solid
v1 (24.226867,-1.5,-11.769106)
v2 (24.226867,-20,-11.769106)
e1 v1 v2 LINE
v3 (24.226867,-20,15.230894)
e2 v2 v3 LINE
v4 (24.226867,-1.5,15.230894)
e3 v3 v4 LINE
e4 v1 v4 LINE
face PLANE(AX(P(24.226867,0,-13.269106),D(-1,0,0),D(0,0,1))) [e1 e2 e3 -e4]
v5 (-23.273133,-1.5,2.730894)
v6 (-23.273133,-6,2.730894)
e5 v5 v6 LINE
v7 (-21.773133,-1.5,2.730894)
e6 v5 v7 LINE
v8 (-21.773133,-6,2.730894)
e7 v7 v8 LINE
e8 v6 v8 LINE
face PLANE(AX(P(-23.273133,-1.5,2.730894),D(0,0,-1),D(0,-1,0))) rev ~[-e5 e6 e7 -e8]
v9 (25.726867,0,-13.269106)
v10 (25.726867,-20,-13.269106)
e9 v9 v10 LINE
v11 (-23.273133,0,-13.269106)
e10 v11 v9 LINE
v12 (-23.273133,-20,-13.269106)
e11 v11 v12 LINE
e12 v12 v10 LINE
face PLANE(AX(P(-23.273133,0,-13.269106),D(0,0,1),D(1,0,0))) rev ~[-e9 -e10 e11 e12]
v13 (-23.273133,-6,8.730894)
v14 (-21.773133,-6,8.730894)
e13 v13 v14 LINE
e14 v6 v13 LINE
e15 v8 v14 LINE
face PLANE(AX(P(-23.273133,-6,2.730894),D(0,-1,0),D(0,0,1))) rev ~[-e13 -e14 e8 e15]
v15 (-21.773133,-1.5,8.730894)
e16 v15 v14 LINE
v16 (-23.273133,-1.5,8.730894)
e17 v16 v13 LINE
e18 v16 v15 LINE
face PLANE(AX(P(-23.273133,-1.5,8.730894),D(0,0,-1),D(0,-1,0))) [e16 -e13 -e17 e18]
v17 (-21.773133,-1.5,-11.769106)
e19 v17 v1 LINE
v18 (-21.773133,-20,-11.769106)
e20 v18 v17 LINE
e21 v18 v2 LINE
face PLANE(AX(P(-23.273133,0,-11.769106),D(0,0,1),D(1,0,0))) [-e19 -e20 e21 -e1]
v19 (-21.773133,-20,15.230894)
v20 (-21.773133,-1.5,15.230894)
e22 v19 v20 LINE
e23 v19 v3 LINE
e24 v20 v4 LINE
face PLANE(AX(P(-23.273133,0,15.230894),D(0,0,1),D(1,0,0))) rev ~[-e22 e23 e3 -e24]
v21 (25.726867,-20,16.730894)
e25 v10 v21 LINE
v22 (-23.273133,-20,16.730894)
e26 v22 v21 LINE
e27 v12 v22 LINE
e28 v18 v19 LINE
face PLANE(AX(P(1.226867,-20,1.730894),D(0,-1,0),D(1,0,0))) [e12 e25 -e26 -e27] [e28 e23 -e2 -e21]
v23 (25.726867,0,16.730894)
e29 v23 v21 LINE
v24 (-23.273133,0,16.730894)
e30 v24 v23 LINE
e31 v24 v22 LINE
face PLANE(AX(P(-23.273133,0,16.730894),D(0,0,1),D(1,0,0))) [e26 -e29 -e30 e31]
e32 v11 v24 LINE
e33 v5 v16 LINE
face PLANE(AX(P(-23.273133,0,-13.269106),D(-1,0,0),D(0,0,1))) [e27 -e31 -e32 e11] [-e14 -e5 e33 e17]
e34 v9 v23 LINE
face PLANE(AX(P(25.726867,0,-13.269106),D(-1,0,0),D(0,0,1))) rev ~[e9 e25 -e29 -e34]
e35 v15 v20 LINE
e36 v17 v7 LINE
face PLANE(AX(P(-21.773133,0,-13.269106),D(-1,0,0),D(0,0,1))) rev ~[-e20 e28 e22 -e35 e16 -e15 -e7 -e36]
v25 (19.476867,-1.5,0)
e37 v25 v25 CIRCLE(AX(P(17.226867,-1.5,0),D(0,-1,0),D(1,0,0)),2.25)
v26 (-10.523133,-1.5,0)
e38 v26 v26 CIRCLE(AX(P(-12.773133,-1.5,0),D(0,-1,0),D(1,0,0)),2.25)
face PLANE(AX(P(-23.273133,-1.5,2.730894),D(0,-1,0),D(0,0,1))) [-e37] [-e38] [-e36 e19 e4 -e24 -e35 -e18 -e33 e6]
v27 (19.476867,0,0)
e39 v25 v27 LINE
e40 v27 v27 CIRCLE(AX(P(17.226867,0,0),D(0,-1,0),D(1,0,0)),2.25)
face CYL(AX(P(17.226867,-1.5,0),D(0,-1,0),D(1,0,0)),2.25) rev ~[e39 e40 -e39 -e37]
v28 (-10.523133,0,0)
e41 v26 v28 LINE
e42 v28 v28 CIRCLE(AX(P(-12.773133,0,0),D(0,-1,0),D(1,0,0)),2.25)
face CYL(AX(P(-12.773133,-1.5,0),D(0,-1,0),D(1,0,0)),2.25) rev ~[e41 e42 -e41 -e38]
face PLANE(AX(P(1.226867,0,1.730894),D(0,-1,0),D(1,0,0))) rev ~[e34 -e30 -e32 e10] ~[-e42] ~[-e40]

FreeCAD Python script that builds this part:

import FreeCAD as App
import Part
import Sketcher


def faces_at(feature, points):
    """Names of the faces that lie closest to the given points."""
    faces = feature.Shape.Faces
    near = lambda p: min(range(len(faces)), key=lambda i: faces[i].distToShape(Part.Vertex(*p))[0])
    return sorted({f"Face{near(p) + 1}" for p in points})


def add_polygon(sketch, points):
    """Adds a closed chain of lines whose ends are joined by coincident constraints."""
    first, n = sketch.GeometryCount, len(points)
    for a, b in zip(points, points[1:] + points[:1]):
        sketch.addGeometry(Part.LineSegment(App.Vector(*a, 0), App.Vector(*b, 0)), False)
    for i in range(n):
        sketch.addConstraint(Sketcher.Constraint("Coincident", first + i, 2, first + (i + 1) % n, 1))

doc = App.newDocument("Part")
params = doc.addObject("Spreadsheet::Sheet", "Params")
for row, (alias, value) in enumerate([
    ("sketch1_width", "49 mm"),
    ("sketch1_height", "30 mm"),
    ("pad1_length", "20 mm"),
    ("thickness_wall", "1.5 mm"),
    ("sketch2_diameter", "4.5 mm"),
    ("sketch3_height", "6 mm"),
    ("sketch3_width", "4.5 mm"),
    ("pocket2_length", "1.5 mm"),
], start=1):
    params.set(f"A{row}", alias)
    params.set(f"B{row}", "=" + value)
    params.setAlias(f"B{row}", alias)

body = doc.addObject("PartDesign::Body", "Body")

sketch1 = doc.addObject("Sketcher::SketchObject", "Sketch")
body.addObject(sketch1)
sketch1.AttachmentSupport = (doc.XZ_Plane, [""])
sketch1.MapMode = "FlatFace"
add_polygon(sketch1, [(-23.273133, 16.730894), (-23.273133, -13.269106), (25.726867, -13.269106), (25.726867, 16.730894)])
sketch1.addConstraint([
    Sketcher.Constraint("Vertical", 0),
    Sketcher.Constraint("Horizontal", 1),
    Sketcher.Constraint("Vertical", 2),
    Sketcher.Constraint("Horizontal", 3),
    Sketcher.Constraint("DistanceX", 1, 1, 1, 2, 49.0),
    Sketcher.Constraint("DistanceY", 0, 2, 0, 1, 30.0),
    Sketcher.Constraint("DistanceX", 0, 2, -1, 1, 23.273133),
    Sketcher.Constraint("DistanceY", 0, 2, -1, 1, 13.269106),
])
sketch1.setExpression("Constraints[8]", "Params.sketch1_width")
sketch1.setExpression("Constraints[9]", "Params.sketch1_height")
pad1 = doc.addObject("PartDesign::Pad", "Pad")
body.addObject(pad1)
pad1.Profile = sketch1
pad1.setExpression("Length", "Params.pad1_length")
doc.recompute()

thickness = doc.addObject("PartDesign::Thickness", "Thickness")
body.addObject(thickness)
thickness.Base = (pad1, faces_at(pad1, [(1.227, -20, 1.731)]))
thickness.setExpression("Value", "Params.thickness_wall")
thickness.Reversed = True
thickness.Join = "Arc"

sketch2 = doc.addObject("Sketcher::SketchObject", "Sketch001")
body.addObject(sketch2)
sketch2.AttachmentSupport = (doc.XZ_Plane, [""])
sketch2.MapMode = "FlatFace"
sketch2.AttachmentOffset = App.Placement(App.Vector(0, 0, 1.5), App.Rotation())
sketch2.addGeometry([
    Part.Circle(App.Vector(-12.773133, 0, 0), App.Vector(0, 0, 1), 2.25),
    Part.Circle(App.Vector(17.226867, 0, 0), App.Vector(0, 0, 1), 2.25),
], False)
sketch2.addConstraint([
    Sketcher.Constraint("Equal", 0, 1),
    Sketcher.Constraint("PointOnObject", 0, 3, -1),
    Sketcher.Constraint("PointOnObject", 1, 3, -1),
    Sketcher.Constraint("Diameter", 0, 4.5),
    Sketcher.Constraint("DistanceX", 0, 3, 1, 3, 30.0),
    Sketcher.Constraint("DistanceX", 0, 3, -1, 1, 12.773133),
])
sketch2.setExpression("Constraints[3]", "Params.sketch2_diameter")
pocket1 = doc.addObject("PartDesign::Pocket", "Pocket")
body.addObject(pocket1)
pocket1.Profile = sketch2
pocket1.Type = "ThroughAll"

sketch3 = doc.addObject("Sketcher::SketchObject", "Sketch002")
body.addObject(sketch3)
sketch3.AttachmentSupport = (doc.YZ_Plane, [""])
sketch3.MapMode = "FlatFace"
sketch3.AttachmentOffset = App.Placement(App.Vector(0, 0, -23.273133), App.Rotation())
add_polygon(sketch3, [(-1.5, 8.730894), (-1.5, 2.730894), (-6, 2.730894), (-6, 8.730894)])
sketch3.addConstraint([
    Sketcher.Constraint("Vertical", 0),
    Sketcher.Constraint("Horizontal", 1),
    Sketcher.Constraint("Vertical", 2),
    Sketcher.Constraint("Horizontal", 3),
    Sketcher.Constraint("DistanceY", 0, 2, 0, 1, 6.0),
    Sketcher.Constraint("DistanceX", 1, 2, 1, 1, 4.5),
    Sketcher.Constraint("DistanceX", 1, 2, -1, 1, 6.0),
    Sketcher.Constraint("DistanceY", -1, 1, 0, 2, 2.730894),
])
sketch3.setExpression("Constraints[8]", "Params.sketch3_height")
sketch3.setExpression("Constraints[9]", "Params.sketch3_width")
pocket2 = doc.addObject("PartDesign::Pocket", "Pocket001")
body.addObject(pocket2)
pocket2.Profile = sketch3
pocket2.setExpression("Length", "Params.pocket2_length")
pocket2.Reversed = True

doc.recompute()
